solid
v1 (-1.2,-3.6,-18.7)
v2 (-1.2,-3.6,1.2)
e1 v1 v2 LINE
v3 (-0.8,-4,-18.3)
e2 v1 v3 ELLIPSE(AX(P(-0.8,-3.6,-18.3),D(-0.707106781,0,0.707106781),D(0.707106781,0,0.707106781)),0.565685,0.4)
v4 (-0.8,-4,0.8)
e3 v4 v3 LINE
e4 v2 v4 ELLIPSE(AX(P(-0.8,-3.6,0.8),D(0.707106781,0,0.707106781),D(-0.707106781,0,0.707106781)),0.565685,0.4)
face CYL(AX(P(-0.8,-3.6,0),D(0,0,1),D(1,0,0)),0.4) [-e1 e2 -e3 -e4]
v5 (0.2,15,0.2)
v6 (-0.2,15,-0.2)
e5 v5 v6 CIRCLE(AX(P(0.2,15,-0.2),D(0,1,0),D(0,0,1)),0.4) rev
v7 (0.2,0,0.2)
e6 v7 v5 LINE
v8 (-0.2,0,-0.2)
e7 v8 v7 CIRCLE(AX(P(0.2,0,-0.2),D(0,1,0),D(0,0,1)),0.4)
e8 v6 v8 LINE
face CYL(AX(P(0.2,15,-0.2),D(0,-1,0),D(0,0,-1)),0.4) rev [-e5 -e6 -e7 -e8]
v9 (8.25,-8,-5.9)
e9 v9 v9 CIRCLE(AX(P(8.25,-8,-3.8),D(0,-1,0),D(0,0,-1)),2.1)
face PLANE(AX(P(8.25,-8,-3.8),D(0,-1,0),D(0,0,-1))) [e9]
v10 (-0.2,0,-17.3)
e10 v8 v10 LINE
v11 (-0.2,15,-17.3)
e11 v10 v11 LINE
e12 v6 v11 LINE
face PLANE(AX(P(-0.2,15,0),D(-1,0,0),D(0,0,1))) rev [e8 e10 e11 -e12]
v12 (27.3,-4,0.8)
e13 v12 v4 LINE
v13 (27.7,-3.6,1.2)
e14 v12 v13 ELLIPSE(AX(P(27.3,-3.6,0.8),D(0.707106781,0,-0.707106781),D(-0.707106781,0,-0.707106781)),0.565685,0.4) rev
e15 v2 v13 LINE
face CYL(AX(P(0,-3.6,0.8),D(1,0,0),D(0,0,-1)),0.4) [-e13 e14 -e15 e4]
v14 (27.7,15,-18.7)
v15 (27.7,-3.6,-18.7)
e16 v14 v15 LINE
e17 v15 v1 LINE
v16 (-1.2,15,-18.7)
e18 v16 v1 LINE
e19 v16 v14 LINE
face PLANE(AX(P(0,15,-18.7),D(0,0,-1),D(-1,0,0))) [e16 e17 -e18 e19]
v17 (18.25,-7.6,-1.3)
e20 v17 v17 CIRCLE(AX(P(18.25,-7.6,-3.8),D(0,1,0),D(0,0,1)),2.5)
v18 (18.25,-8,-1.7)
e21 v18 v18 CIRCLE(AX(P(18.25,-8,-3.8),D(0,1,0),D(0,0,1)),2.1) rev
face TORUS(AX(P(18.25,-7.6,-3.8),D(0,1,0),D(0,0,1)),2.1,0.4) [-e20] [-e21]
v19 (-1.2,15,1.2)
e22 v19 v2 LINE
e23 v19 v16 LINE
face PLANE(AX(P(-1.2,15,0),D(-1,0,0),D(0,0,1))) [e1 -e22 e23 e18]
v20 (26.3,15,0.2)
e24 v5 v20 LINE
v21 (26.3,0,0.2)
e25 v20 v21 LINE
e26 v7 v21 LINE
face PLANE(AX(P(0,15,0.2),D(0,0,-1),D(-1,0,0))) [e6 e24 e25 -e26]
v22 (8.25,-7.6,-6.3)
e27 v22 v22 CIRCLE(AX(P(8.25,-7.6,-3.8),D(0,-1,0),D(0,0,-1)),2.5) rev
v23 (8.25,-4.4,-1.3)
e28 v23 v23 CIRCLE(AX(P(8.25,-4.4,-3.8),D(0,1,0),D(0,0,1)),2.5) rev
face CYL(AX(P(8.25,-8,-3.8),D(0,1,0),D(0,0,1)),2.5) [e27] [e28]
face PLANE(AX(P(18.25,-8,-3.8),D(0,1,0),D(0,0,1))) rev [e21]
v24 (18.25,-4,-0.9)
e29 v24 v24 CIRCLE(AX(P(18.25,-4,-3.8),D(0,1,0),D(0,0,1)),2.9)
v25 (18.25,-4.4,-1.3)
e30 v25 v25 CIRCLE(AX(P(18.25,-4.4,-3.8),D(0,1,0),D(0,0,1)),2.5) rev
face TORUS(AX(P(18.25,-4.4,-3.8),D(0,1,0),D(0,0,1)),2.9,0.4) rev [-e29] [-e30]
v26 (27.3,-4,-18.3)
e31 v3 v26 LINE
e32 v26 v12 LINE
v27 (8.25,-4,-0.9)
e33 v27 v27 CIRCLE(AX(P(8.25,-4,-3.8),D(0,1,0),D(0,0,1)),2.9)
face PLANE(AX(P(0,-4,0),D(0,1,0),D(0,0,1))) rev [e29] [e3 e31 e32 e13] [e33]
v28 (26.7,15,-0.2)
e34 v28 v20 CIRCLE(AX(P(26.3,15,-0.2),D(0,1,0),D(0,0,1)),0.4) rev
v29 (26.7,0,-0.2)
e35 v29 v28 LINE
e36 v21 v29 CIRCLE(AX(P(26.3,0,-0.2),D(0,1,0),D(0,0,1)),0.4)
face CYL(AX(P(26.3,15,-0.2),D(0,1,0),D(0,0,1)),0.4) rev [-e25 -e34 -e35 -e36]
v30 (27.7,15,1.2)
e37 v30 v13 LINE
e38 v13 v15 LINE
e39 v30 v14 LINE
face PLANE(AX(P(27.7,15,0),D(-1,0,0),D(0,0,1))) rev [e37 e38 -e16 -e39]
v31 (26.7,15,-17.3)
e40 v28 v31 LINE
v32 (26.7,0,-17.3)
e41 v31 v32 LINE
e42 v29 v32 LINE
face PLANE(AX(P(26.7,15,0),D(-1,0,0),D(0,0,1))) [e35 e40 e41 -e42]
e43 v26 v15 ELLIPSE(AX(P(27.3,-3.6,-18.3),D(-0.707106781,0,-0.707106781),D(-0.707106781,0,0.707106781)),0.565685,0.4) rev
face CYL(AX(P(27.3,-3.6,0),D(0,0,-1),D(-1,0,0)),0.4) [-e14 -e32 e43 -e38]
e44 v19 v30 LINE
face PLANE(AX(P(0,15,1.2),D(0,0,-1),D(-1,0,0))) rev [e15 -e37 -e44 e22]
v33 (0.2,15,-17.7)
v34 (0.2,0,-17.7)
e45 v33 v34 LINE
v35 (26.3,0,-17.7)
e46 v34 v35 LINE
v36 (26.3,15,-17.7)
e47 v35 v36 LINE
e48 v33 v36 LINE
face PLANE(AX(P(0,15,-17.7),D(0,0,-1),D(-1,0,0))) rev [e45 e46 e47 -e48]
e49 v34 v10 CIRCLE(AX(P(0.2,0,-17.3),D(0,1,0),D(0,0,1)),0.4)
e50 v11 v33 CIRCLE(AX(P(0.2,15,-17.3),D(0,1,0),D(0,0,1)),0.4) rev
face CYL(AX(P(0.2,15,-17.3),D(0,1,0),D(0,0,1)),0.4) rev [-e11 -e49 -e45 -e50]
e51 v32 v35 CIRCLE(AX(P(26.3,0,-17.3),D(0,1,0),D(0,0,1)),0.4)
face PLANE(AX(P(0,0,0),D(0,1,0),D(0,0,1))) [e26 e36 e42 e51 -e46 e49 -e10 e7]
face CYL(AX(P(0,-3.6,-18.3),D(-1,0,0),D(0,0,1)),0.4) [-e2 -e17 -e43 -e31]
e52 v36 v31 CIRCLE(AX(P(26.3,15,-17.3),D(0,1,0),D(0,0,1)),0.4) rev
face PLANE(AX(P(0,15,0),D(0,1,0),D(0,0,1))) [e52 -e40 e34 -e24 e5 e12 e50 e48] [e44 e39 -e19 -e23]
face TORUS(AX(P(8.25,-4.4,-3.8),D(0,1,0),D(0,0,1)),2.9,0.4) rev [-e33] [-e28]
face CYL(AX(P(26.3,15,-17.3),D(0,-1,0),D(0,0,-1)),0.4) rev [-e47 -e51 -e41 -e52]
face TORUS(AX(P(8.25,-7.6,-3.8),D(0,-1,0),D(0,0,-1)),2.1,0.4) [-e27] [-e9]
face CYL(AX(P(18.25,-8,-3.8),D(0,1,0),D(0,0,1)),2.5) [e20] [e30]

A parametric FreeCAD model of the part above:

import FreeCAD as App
import Part
import Sketcher
from FreeCAD import Vector
Q = App.Units.Quantity


def edges_at(feature, points):
    """Names of the edges that pass closest to the given points."""
    edges = feature.Shape.Edges
    near = lambda p: min(range(len(edges)), key=lambda i: edges[i].distToShape(Part.Vertex(*p))[0])
    return sorted({f"Edge{near(p) + 1}" for p in points})


def add_polygon(sketch, points):
    """Adds a closed chain of lines whose ends are joined by coincident constraints."""
    first, n = sketch.GeometryCount, len(points)
    for a, b in zip(points, points[1:] + points[:1]):
        sketch.addGeometry(Part.LineSegment(App.Vector(*a, 0), App.Vector(*b, 0)), False)
    for i in range(n):
        sketch.addConstraint(Sketcher.Constraint("Coincident", first + i, 2, first + (i + 1) % n, 1))

doc = App.newDocument("Part")
params = doc.addObject("Spreadsheet::Sheet", "Params")
for row, (alias, value) in enumerate([
    ("sketch1_width", "28.9 mm"),
    ("sketch1_width2", "26.9 mm"),
    ("sketch1_height", "19.9 mm"),
    ("sketch1_height2", "17.9 mm"),
    ("pad1_length", "15 mm"),
    ("sketch2_width", "28.9 mm"),
    ("sketch2_height", "19.9 mm"),
    ("pad2_length", "4 mm"),
    ("sketch3_diameter", "5 mm"),
    ("pad3_length", "4 mm"),
    ("fillet_radius", "0.4 mm"),
    ("fillet2_radius", "0.4 mm"),
], start=1):
    params.set(f"A{row}", alias)
    params.set(f"B{row}", "=" + value)
    params.setAlias(f"B{row}", alias)

body = doc.addObject("PartDesign::Body", "Body")

# Sketch on XZ plane
sketch1 = body.newObject("Sketcher::SketchObject", "Sketch")
sketch1.AttachmentSupport = (doc.getObject("XZ_Plane"), [""])
sketch1.MapMode = "FlatFace"
add_polygon(sketch1, [(-1.2, -18.7), (-1.2, 1.2), (27.7, 1.2), (27.7, -18.7)])  # lines 0-3
add_polygon(sketch1, [(26.7, 0.2), (-0.2, 0.2), (-0.2, -17.7), (26.7, -17.7)])  # lines 4-7
sketch1.addConstraint([
    Sketcher.Constraint("Vertical", 0),
    Sketcher.Constraint("Horizontal", 1),
    Sketcher.Constraint("Vertical", 2),
    Sketcher.Constraint("Horizontal", 3),
    Sketcher.Constraint("Horizontal", 4),
    Sketcher.Constraint("Vertical", 5),
    Sketcher.Constraint("Horizontal", 6),
    Sketcher.Constraint("Vertical", 7),
    Sketcher.Constraint("DistanceX", 1, 1, 1, 2, Q("28.9 mm")),
    Sketcher.Constraint("DistanceX", 4, 2, 4, 1, Q("26.9 mm")),
    Sketcher.Constraint("DistanceY", 0, 1, 0, 2, Q("19.9 mm")),
    Sketcher.Constraint("DistanceY", 5, 2, 5, 1, Q("17.9 mm")),
    Sketcher.Constraint("DistanceX", 0, 2, 4, 2, Q("1 mm")),
    Sketcher.Constraint("DistanceY", 4, 2, 0, 2, Q("1 mm")),
    Sketcher.Constraint("DistanceX", 0, 2, -1, 1, Q("1.2 mm")),
    Sketcher.Constraint("DistanceY", -1, 1, 0, 2, Q("1.2 mm")),
])
sketch1.setExpression("Constraints[16]", "Params.sketch1_width")
sketch1.setExpression("Constraints[17]", "Params.sketch1_width2")
sketch1.setExpression("Constraints[18]", "Params.sketch1_height")
sketch1.setExpression("Constraints[19]", "Params.sketch1_height2")
pad1 = body.newObject("PartDesign::Pad", "Pad")
pad1.Profile = sketch1
pad1.setExpression("Length", "Params.pad1_length")
pad1.Reversed = True

# Sketch on XZ plane
sketch2 = body.newObject("Sketcher::SketchObject", "Sketch001")
sketch2.AttachmentSupport = (doc.getObject("XZ_Plane"), [""])
sketch2.MapMode = "FlatFace"
add_polygon(sketch2, [(-1.2, -18.7), (-1.2, 1.2), (27.7, 1.2), (27.7, -18.7)])  # lines 0-3
sketch2.addConstraint([
    Sketcher.Constraint("Vertical", 0),
    Sketcher.Constraint("Horizontal", 1),
    Sketcher.Constraint("Vertical", 2),
    Sketcher.Constraint("Horizontal", 3),
    Sketcher.Constraint("DistanceX", 1, 1, 1, 2, Q("28.9 mm")),
    Sketcher.Constraint("DistanceY", 0, 1, 0, 2, Q("19.9 mm")),
    Sketcher.Constraint("DistanceX", 0, 2, -1, 1, Q("1.2 mm")),
    Sketcher.Constraint("DistanceY", -1, 1, 0, 2, Q("1.2 mm")),
])
sketch2.setExpression("Constraints[8]", "Params.sketch2_width")
sketch2.setExpression("Constraints[9]", "Params.sketch2_height")
pad2 = body.newObject("PartDesign::Pad", "Pad001")
pad2.Profile = sketch2
pad2.setExpression("Length", "Params.pad2_length")

# Sketch on XZ plane
sketch3 = body.newObject("Sketcher::SketchObject", "Sketch002")
sketch3.AttachmentSupport = (doc.getObject("XZ_Plane"), [""])
sketch3.MapMode = "FlatFace"
sketch3.AttachmentOffset = App.Placement(Vector(0, 0, 4), App.Rotation())
sketch3.addGeometry([
    Part.Circle(Vector(8.25, -3.8, 0), Vector(0, 0, 1), 2.5),
    Part.Circle(Vector(18.25, -3.8, 0), Vector(0, 0, 1), 2.5),
], False)
sketch3.addConstraint([
    Sketcher.Constraint("Equal", 0, 1),
    Sketcher.Constraint("Horizontal", 0, 3, 1, 3),
    Sketcher.Constraint("Diameter", 0, Q("5 mm")),
    Sketcher.Constraint("DistanceX", 0, 3, 1, 3, Q("10 mm")),
    Sketcher.Constraint("DistanceY", 0, 3, -1, 1, Q("3.8 mm")),
    Sketcher.Constraint("DistanceX", -1, 1, 0, 3, Q("8.25 mm")),
])
sketch3.setExpression("Constraints[2]", "Params.sketch3_diameter")
pad3 = body.newObject("PartDesign::Pad", "Pad002")
pad3.Profile = sketch3
pad3.setExpression("Length", "Params.pad3_length")
doc.recompute()

fillet = body.newObject("PartDesign::Fillet", "Fillet")
fillet.Base = (pad3, edges_at(pad3, [
    (27.7, -4, -8.75),
    (13.25, -4, 1.2),
    (-1.2, -4, -8.75),
    (13.25, -4, -18.7),
    (8.25, -4, -6.3),
    (8.25, -8, -6.3),
    (18.25, -4, -6.3),
    (18.25, -8, -6.3),
]))
fillet.setExpression("Radius", "Params.fillet_radius")
doc.recompute()

fillet2 = body.newObject("PartDesign::Fillet", "Fillet001")
fillet2.Base = (fillet, edges_at(fillet, [
    (26.7, 7.5, 0.2),
    (26.7, 7.5, -17.7),
    (-0.2, 7.5, -17.7),
    (-0.2, 7.5, 0.2),
]))
fillet2.setExpression("Radius", "Params.fillet2_radius")

doc.recompute()
